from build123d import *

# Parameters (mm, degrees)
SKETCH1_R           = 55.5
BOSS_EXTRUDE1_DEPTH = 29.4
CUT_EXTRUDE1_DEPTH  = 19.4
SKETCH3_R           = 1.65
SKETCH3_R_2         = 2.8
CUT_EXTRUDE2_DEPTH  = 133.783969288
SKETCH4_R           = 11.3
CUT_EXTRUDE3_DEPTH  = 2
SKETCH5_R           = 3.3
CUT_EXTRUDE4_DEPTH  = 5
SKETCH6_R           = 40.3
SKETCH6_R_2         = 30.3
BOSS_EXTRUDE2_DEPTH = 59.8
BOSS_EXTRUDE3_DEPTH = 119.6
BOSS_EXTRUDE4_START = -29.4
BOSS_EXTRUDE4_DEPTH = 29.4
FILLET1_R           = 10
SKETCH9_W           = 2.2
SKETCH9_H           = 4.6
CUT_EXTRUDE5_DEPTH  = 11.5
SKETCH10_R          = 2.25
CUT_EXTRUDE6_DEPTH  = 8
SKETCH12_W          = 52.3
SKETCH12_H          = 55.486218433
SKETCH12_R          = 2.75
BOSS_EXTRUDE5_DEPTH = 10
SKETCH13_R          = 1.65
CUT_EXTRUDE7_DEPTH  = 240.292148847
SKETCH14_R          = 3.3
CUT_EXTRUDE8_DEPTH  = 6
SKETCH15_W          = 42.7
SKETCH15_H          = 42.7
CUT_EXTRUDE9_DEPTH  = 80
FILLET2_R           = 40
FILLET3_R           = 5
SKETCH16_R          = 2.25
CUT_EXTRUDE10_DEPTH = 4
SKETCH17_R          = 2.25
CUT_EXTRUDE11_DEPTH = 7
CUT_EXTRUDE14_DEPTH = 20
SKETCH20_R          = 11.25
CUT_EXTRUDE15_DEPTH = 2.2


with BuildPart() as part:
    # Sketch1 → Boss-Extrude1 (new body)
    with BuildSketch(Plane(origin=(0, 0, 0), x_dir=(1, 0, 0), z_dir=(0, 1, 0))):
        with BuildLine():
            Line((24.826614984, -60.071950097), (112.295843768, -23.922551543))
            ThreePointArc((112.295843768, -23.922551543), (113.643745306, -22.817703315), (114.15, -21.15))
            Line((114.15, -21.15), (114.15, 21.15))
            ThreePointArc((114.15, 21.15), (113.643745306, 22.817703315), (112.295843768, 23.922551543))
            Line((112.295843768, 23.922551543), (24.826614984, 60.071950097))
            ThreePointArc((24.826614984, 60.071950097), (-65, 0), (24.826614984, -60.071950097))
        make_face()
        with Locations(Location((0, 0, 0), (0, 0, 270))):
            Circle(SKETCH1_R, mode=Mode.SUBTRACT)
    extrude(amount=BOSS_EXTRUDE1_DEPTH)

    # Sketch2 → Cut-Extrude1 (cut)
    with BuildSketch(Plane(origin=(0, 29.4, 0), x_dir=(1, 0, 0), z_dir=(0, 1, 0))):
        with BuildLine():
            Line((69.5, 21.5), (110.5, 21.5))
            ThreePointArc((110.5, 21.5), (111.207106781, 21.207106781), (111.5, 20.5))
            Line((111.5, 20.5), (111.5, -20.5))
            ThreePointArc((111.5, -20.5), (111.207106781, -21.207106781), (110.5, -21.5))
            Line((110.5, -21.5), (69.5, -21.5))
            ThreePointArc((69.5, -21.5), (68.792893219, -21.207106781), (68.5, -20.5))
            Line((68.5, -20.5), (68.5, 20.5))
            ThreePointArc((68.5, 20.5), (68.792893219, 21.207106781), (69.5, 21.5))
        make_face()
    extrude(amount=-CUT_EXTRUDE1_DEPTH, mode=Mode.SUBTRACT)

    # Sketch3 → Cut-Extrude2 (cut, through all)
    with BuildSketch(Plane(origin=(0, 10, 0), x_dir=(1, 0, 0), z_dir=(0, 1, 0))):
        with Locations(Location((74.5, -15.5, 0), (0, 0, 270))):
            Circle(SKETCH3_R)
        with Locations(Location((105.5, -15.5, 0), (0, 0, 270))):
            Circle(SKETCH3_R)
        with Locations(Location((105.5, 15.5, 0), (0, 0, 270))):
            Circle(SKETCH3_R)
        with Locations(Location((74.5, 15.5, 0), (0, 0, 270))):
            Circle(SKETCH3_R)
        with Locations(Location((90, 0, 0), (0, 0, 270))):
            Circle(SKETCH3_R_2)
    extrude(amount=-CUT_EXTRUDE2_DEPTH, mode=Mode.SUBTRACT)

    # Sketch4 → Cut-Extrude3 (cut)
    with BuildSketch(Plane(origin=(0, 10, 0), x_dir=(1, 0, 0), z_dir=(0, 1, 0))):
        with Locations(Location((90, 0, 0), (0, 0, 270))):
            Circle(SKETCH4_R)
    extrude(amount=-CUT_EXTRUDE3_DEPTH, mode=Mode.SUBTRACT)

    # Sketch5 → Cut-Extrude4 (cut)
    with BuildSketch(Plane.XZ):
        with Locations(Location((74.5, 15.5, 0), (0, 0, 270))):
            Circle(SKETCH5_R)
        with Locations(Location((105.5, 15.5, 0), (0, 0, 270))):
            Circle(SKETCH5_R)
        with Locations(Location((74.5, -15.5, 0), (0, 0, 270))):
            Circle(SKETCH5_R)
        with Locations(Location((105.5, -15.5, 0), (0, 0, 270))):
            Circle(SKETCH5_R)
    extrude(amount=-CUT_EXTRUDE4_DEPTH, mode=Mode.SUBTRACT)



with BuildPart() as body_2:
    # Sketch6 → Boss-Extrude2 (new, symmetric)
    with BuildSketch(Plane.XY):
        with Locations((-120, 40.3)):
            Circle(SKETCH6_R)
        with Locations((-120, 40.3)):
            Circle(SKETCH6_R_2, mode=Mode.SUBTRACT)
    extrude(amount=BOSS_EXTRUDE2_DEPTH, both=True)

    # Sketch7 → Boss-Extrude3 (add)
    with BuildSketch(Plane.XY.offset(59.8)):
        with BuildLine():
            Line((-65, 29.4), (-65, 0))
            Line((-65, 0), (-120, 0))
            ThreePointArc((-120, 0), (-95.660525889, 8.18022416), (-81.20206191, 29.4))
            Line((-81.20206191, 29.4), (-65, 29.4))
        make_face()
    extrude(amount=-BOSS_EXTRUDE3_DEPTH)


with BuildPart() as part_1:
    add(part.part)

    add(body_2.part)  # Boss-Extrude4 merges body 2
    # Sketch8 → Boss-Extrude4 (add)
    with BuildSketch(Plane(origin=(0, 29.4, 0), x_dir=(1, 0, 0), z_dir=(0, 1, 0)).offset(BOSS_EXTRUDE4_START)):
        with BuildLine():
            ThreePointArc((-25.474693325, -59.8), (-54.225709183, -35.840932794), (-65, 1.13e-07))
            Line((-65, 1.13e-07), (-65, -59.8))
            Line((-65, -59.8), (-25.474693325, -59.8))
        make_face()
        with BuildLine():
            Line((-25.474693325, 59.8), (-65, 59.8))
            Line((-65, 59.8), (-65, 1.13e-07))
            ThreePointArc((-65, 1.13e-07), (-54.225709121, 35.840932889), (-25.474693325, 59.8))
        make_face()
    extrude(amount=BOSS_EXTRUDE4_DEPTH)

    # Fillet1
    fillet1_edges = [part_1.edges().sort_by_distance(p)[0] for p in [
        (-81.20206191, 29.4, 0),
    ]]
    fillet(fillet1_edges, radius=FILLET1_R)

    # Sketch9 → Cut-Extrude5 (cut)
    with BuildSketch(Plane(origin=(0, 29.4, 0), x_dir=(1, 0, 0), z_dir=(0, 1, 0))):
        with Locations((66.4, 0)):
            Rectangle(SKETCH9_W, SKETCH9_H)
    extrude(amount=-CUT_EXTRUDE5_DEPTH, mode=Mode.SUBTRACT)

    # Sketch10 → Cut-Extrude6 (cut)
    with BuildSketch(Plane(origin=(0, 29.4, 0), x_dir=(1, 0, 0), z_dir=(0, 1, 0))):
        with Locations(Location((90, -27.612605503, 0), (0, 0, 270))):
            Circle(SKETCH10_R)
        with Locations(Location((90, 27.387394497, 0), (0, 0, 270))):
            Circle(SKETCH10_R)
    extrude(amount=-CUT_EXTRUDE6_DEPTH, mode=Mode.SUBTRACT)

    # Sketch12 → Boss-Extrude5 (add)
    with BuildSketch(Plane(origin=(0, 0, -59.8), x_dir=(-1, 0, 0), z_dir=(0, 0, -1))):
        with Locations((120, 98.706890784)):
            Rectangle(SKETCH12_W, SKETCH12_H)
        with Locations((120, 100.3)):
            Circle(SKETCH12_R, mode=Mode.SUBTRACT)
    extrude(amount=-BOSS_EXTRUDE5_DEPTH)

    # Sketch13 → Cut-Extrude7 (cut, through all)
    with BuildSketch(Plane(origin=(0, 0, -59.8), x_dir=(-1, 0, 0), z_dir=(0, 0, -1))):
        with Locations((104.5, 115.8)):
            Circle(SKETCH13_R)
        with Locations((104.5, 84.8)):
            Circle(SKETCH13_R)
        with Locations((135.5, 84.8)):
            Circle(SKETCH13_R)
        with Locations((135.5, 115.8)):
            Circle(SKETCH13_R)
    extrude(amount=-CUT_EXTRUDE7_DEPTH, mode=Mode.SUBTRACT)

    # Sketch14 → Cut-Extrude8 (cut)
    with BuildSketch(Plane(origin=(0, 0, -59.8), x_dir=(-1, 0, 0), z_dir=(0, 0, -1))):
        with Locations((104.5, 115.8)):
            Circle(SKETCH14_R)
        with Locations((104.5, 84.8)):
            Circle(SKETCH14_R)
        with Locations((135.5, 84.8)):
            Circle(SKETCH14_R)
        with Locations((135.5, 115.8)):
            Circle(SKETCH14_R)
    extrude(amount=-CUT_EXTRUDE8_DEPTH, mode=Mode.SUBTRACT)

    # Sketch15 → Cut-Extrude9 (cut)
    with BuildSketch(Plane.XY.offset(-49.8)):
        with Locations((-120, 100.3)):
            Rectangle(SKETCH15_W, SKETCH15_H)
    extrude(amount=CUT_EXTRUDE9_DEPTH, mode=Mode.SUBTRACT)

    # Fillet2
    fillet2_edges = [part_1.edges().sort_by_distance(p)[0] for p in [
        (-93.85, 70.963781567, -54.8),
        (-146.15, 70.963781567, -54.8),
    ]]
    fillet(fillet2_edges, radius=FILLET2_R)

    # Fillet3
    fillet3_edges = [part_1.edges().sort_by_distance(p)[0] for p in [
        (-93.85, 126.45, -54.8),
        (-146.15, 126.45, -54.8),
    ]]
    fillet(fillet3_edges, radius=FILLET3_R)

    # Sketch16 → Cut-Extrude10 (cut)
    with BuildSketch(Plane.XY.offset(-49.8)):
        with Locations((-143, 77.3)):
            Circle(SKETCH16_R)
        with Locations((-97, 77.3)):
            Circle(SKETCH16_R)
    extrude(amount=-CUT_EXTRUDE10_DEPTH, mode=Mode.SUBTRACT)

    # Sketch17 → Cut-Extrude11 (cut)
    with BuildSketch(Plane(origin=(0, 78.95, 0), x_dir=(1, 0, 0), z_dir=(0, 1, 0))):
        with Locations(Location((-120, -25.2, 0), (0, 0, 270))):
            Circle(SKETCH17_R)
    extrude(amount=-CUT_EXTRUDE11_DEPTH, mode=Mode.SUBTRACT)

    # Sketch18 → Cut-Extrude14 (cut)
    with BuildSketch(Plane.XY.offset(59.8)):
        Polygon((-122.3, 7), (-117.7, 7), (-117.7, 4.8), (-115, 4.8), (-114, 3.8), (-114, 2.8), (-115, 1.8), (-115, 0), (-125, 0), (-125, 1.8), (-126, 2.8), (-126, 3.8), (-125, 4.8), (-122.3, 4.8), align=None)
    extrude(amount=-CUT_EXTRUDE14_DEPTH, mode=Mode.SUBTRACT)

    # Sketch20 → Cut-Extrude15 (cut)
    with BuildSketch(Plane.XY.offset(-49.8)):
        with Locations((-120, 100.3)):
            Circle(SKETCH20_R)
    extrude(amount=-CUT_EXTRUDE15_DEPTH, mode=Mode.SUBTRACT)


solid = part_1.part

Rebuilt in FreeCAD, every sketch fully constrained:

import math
import FreeCAD as App
import Part
import Sketcher

V = App.Vector
Q = App.Units.Quantity


def edges_at(feature, points):
    """Names of the edges that pass closest to the given points."""
    edges = feature.Shape.Edges
    near = lambda p: min(range(len(edges)), key=lambda i: edges[i].distToShape(Part.Vertex(*p))[0])
    return sorted({f"Edge{near(p) + 1}" for p in points})

doc = App.newDocument("Part")
params = doc.addObject("Spreadsheet::Sheet", "Params")
for row, (alias, value) in enumerate([
    ("sketch1_diameter", "111 mm"),
    ("sketch1_radius", "3 mm"),
    ("sketch1_radius2", "65 mm"),
    ("sketch1_height", "42.3 mm"),
    ("pad1_length", "29.4 mm"),
    ("sketch2_radius", "1 mm"),
    ("sketch2_width", "41 mm"),
    ("pocket1_length", "19.4 mm"),
    ("sketch3_diameter", "3.3 mm"),
    ("sketch3_diameter2", "5.6 mm"),
    ("sketch4_diameter", "22.6 mm"),
    ("pocket3_length", "2 mm"),
    ("sketch5_diameter", "6.6 mm"),
    ("pocket4_length", "5 mm"),
    ("sketch6_diameter", "80.6 mm"),
    ("sketch6_diameter2", "60.6 mm"),
    ("pad2_length", "119.6 mm"),
    ("sketch7_radius", "40.3 mm"),
    ("sketch7_width", "55 mm"),
    ("sketch7_height", "29.4 mm"),
    ("pad3_length", "119.6 mm"),
    ("sketch8_radius", "65 mm"),
    ("sketch8_height", "59.8 mm"),
    ("pad4_length", "29.4 mm"),
    ("fillet_radius", "10 mm"),
    ("sketch9_width", "2.2 mm"),
    ("sketch9_height", "4.6 mm"),
    ("pocket5_length", "11.5 mm"),
    ("sketch10_diameter", "4.5 mm"),
    ("pocket6_length", "8 mm"),
    ("sketch11_diameter", "5.5 mm"),
    ("sketch11_width", "52.3 mm"),
    ("pad5_length", "10 mm"),
    ("sketch12_diameter", "3.3 mm"),
    ("sketch13_diameter", "6.6 mm"),
    ("pocket8_length", "6 mm"),
    ("sketch14_width", "42.7 mm"),
    ("pocket9_length", "80 mm"),
    ("fillet2_radius", "40 mm"),
    ("fillet3_radius", "5 mm"),
    ("sketch15_diameter", "4.5 mm"),
    ("pocket10_length", "4 mm"),
    ("sketch16_diameter", "4.5 mm"),
    ("pocket11_length", "7 mm"),
    ("sketch17_width", "10 mm"),
    ("sketch17_height", "1 mm"),
    ("sketch17_width2", "4.6 mm"),
    ("sketch17_height2", "2.2 mm"),
    ("sketch17_height3", "1.8 mm"),
    ("pocket12_length", "20 mm"),
    ("sketch18_diameter", "22.5 mm"),
    ("pocket13_length", "2.2 mm"),
], start=1):
    params.set(f"A{row}", alias)
    params.set(f"B{row}", "=" + value)
    params.setAlias(f"B{row}", alias)

body = doc.addObject("PartDesign::Body", "Body")

sketch1 = doc.addObject("Sketcher::SketchObject", "Sketch")
body.addObject(sketch1)
sketch1.AttachmentSupport = (doc.XZ_Plane, [""])
sketch1.MapMode = "FlatFace"
sketch1.addGeometry([
    Part.LineSegment(V(24.826615, 60.07195, 0), V(112.295844, 23.922552, 0)),
    Part.ArcOfCircle(Part.Circle(V(111.15, 21.15, 0), V(0, 0, 1), 3), math.radians(0), math.radians(67.545606)),
    Part.LineSegment(V(114.15, 21.15, 0), V(114.15, -21.15, 0)),
    Part.ArcOfCircle(Part.Circle(V(111.15, -21.15, 0), V(0, 0, 1), 3), math.radians(-67.545606), math.radians(0)),
    Part.LineSegment(V(112.295844, -23.922552, 0), V(24.826615, -60.07195, 0)),
    Part.ArcOfCircle(Part.Circle(V(0, 0, 0), V(0, 0, 1), 65), math.radians(67.545606), math.radians(292.454394)),
    Part.Circle(V(0, 0, 0), V(0, 0, 1), 55.5),
], False)
sketch1.addConstraint([
    Sketcher.Constraint("Tangent", 0, 2, 1, 2),
    Sketcher.Constraint("Tangent", 1, 1, 2, 1),
    Sketcher.Constraint("Tangent", 2, 2, 3, 2),
    Sketcher.Constraint("Tangent", 3, 1, 4, 1),
    Sketcher.Constraint("Tangent", 4, 2, 5, 2),
    Sketcher.Constraint("Tangent", 5, 1, 0, 1),
    Sketcher.Constraint("Vertical", 2),
    Sketcher.Constraint("Coincident", 5, 3, -1, 1),
    Sketcher.Constraint("Coincident", 6, 3, -1, 1),
    Sketcher.Constraint("Equal", 1, 3),
    Sketcher.Constraint("Vertical", 0, 2, 3, 1),
    Sketcher.Constraint("Diameter", 6, Q("111 mm")),
    Sketcher.Constraint("Radius", 1, Q("3 mm")),
    Sketcher.Constraint("Radius", 5, Q("65 mm")),
    Sketcher.Constraint("DistanceY", 2, 2, 2, 1, Q("42.3 mm")),
    Sketcher.Constraint("DistanceX", -1, 1, 1, 3, Q("111.15 mm")),
])
sketch1.setExpression("Constraints[11]", "Params.sketch1_diameter")
sketch1.setExpression("Constraints[12]", "Params.sketch1_radius")
sketch1.setExpression("Constraints[13]", "Params.sketch1_radius2")
sketch1.setExpression("Constraints[14]", "Params.sketch1_height")
pad1 = doc.addObject("PartDesign::Pad", "Pad")
body.addObject(pad1)
pad1.Profile = sketch1
pad1.setExpression("Length", "Params.pad1_length")
pad1.Reversed = True

sketch2 = doc.addObject("Sketcher::SketchObject", "Sketch001")
body.addObject(sketch2)
sketch2.AttachmentSupport = (doc.XZ_Plane, [""])
sketch2.MapMode = "FlatFace"
sketch2.AttachmentOffset = App.Placement(V(0, 0, -29.4), App.Rotation())
sketch2.addGeometry([
    Part.LineSegment(V(110.5, -21.5, 0), V(69.5, -21.5, 0)),
    Part.ArcOfCircle(Part.Circle(V(69.5, -20.5, 0), V(0, 0, 1), 1), math.radians(-180), math.radians(-90)),
    Part.LineSegment(V(68.5, -20.5, 0), V(68.5, 20.5, 0)),
    Part.ArcOfCircle(Part.Circle(V(69.5, 20.5, 0), V(0, 0, 1), 1), math.radians(90), math.radians(180)),
    Part.LineSegment(V(69.5, 21.5, 0), V(110.5, 21.5, 0)),
    Part.ArcOfCircle(Part.Circle(V(110.5, 20.5, 0), V(0, 0, 1), 1), math.radians(0), math.radians(90)),
    Part.LineSegment(V(111.5, 20.5, 0), V(111.5, -20.5, 0)),
    Part.ArcOfCircle(Part.Circle(V(110.5, -20.5, 0), V(0, 0, 1), 1), math.radians(-90), math.radians(0)),
], False)
sketch2.addConstraint([
    Sketcher.Constraint("Tangent", 0, 2, 1, 2),
    Sketcher.Constraint("Tangent", 1, 1, 2, 1),
    Sketcher.Constraint("Tangent", 2, 2, 3, 2),
    Sketcher.Constraint("Tangent", 3, 1, 4, 1),
    Sketcher.Constraint("Tangent", 4, 2, 5, 2),
    Sketcher.Constraint("Tangent", 5, 1, 6, 1),
    Sketcher.Constraint("Tangent", 6, 2, 7, 2),
    Sketcher.Constraint("Tangent", 7, 1, 0, 1),
    Sketcher.Constraint("Horizontal", 0),
    Sketcher.Constraint("Vertical", 2),
    Sketcher.Constraint("Horizontal", 4),
    Sketcher.Constraint("Vertical", 6),
    Sketcher.Constraint("Equal", 1, 3),
    Sketcher.Constraint("Equal", 3, 5),
    Sketcher.Constraint("Equal", 5, 7),
    Sketcher.Constraint("Equal", 4, 2),
    Sketcher.Constraint("Radius", 1, Q("1 mm")),
    Sketcher.Constraint("DistanceX", 0, 2, 0, 1, Q("41 mm")),
    Sketcher.Constraint("DistanceX", -1, 1, 1, 3, Q("69.5 mm")),
    Sketcher.Constraint("DistanceY", 1, 3, -1, 1, Q("20.5 mm")),
])
sketch2.setExpression("Constraints[16]", "Params.sketch2_radius")
sketch2.setExpression("Constraints[17]", "Params.sketch2_width")
pocket1 = doc.addObject("PartDesign::Pocket", "Pocket")
body.addObject(pocket1)
pocket1.Profile = sketch2
pocket1.setExpression("Length", "Params.pocket1_length")
pocket1.Reversed = True

sketch3 = doc.addObject("Sketcher::SketchObject", "Sketch002")
body.addObject(sketch3)
sketch3.AttachmentSupport = (doc.XZ_Plane, [""])
sketch3.MapMode = "FlatFace"
sketch3.AttachmentOffset = App.Placement(V(0, 0, -10), App.Rotation())
sketch3.addGeometry([
    Part.Circle(V(74.5, 15.5, 0), V(0, 0, 1), 1.65),
    Part.Circle(V(105.5, 15.5, 0), V(0, 0, 1), 1.65),
    Part.Circle(V(105.5, -15.5, 0), V(0, 0, 1), 1.65),
    Part.Circle(V(74.5, -15.5, 0), V(0, 0, 1), 1.65),
    Part.Circle(V(90, 0, 0), V(0, 0, 1), 2.8),
], False)
sketch3.addConstraint([
    Sketcher.Constraint("Equal", 0, 1),
    Sketcher.Constraint("Equal", 1, 2),
    Sketcher.Constraint("Equal", 2, 3),
    Sketcher.Constraint("Symmetric", 1, 3, 2, 3, -1),
    Sketcher.Constraint("Symmetric", 0, 3, 3, 3, -1),
    Sketcher.Constraint("PointOnObject", 4, 3, -1),
    Sketcher.Constraint("Horizontal", 0, 3, 1, 3),
    Sketcher.Constraint("Diameter", 0, Q("3.3 mm")),
    Sketcher.Constraint("Diameter", 4, Q("5.6 mm")),
    Sketcher.Constraint("DistanceX", -1, 1, 4, 3, Q("90 mm")),
    Sketcher.Constraint("DistanceX", 0, 3, 1, 3, Q("31 mm")),
    Sketcher.Constraint("DistanceY", 2, 3, 1, 3, Q("31 mm")),
    Sketcher.Constraint("DistanceX", -1, 1, 0, 3, Q("74.5 mm")),
])
sketch3.setExpression("Constraints[7]", "Params.sketch3_diameter")
sketch3.setExpression("Constraints[8]", "Params.sketch3_diameter2")
pocket2 = doc.addObject("PartDesign::Pocket", "Pocket001")
body.addObject(pocket2)
pocket2.Profile = sketch3
pocket2.Type = "ThroughAll"
pocket2.Reversed = True

sketch4 = doc.addObject("Sketcher::SketchObject", "Sketch003")
body.addObject(sketch4)
sketch4.AttachmentSupport = (doc.XZ_Plane, [""])
sketch4.MapMode = "FlatFace"
sketch4.AttachmentOffset = App.Placement(V(0, 0, -10), App.Rotation())
sketch4.addGeometry(Part.Circle(V(90, 0, 0), V(0, 0, 1), 11.3), False)
sketch4.addConstraint([
    Sketcher.Constraint("PointOnObject", 0, 3, -1),
    Sketcher.Constraint("Diameter", 0, Q("22.6 mm")),
    Sketcher.Constraint("DistanceX", -1, 1, 0, 3, Q("90 mm")),
])
sketch4.setExpression("Constraints[1]", "Params.sketch4_diameter")
pocket3 = doc.addObject("PartDesign::Pocket", "Pocket002")
body.addObject(pocket3)
pocket3.Profile = sketch4
pocket3.setExpression("Length", "Params.pocket3_length")
pocket3.Reversed = True

sketch5 = doc.addObject("Sketcher::SketchObject", "Sketch004")
body.addObject(sketch5)
sketch5.AttachmentSupport = (doc.XZ_Plane, [""])
sketch5.MapMode = "FlatFace"
sketch5.addGeometry([
    Part.Circle(V(74.5, 15.5, 0), V(0, 0, 1), 3.3),
    Part.Circle(V(105.5, 15.5, 0), V(0, 0, 1), 3.3),
    Part.Circle(V(74.5, -15.5, 0), V(0, 0, 1), 3.3),
    Part.Circle(V(105.5, -15.5, 0), V(0, 0, 1), 3.3),
], False)
sketch5.addConstraint([
    Sketcher.Constraint("Equal", 0, 1),
    Sketcher.Constraint("Equal", 1, 2),
    Sketcher.Constraint("Equal", 2, 3),
    Sketcher.Constraint("Symmetric", 0, 3, 2, 3, -1),
    Sketcher.Constraint("Symmetric", 1, 3, 3, 3, -1),
    Sketcher.Constraint("Horizontal", 0, 3, 1, 3),
    Sketcher.Constraint("Diameter", 0, Q("6.6 mm")),
    Sketcher.Constraint("DistanceX", 0, 3, 1, 3, Q("31 mm")),
    Sketcher.Constraint("DistanceY", 2, 3, 0, 3, Q("31 mm")),
    Sketcher.Constraint("DistanceX", -1, 1, 0, 3, Q("74.5 mm")),
])
sketch5.setExpression("Constraints[6]", "Params.sketch5_diameter")
pocket4 = doc.addObject("PartDesign::Pocket", "Pocket003")
body.addObject(pocket4)
pocket4.Profile = sketch5
pocket4.setExpression("Length", "Params.pocket4_length")
body2 = doc.addObject("PartDesign::Body", "Body001")

sketch6 = doc.addObject("Sketcher::SketchObject", "Sketch005")
body2.addObject(sketch6)
sketch6.AttachmentSupport = (doc.getObject("XY_Plane001"), [""])
sketch6.MapMode = "FlatFace"
sketch6.addGeometry([
    Part.Circle(V(-120, 40.3, 0), V(0, 0, 1), 40.3),
    Part.Circle(V(-120, 40.3, 0), V(0, 0, 1), 30.3),
], False)
sketch6.addConstraint([
    Sketcher.Constraint("Coincident", 1, 3, 0, 3),
    Sketcher.Constraint("Diameter", 0, Q("80.6 mm")),
    Sketcher.Constraint("Diameter", 1, Q("60.6 mm")),
    Sketcher.Constraint("DistanceX", 0, 3, -1, 1, Q("120 mm")),
    Sketcher.Constraint("DistanceY", -1, 1, 0, 3, Q("40.3 mm")),
])
sketch6.setExpression("Constraints[1]", "Params.sketch6_diameter")
sketch6.setExpression("Constraints[2]", "Params.sketch6_diameter2")
pad2 = doc.addObject("PartDesign::Pad", "Pad001")
body2.addObject(pad2)
pad2.Profile = sketch6
pad2.setExpression("Length", "Params.pad2_length")
pad2.Midplane = True

sketch7 = doc.addObject("Sketcher::SketchObject", "Sketch006")
body2.addObject(sketch7)
sketch7.AttachmentSupport = (doc.getObject("XY_Plane001"), [""])
sketch7.MapMode = "FlatFace"
sketch7.AttachmentOffset = App.Placement(V(0, 0, 59.8), App.Rotation())
sketch7.addGeometry([
    Part.LineSegment(V(-65, 0, 0), V(-65, 29.4, 0)),
    Part.LineSegment(V(-65, 29.4, 0), V(-81.202062, 29.4, 0)),
    Part.ArcOfCircle(Part.Circle(V(-120, 40.3, 0), V(0, 0, 1), 40.3), math.radians(-90), math.radians(-15.692324)),
    Part.LineSegment(V(-120, 0, 0), V(-65, 0, 0)),
], False)
sketch7.addConstraint([
    Sketcher.Constraint("Coincident", 0, 2, 1, 1),
    Sketcher.Constraint("Coincident", 1, 2, 2, 2),
    Sketcher.Constraint("Tangent", 2, 1, 3, 1),
    Sketcher.Constraint("Coincident", 3, 2, 0, 1),
    Sketcher.Constraint("Vertical", 0),
    Sketcher.Constraint("Horizontal", 1),
    Sketcher.Constraint("Horizontal", 3),
    Sketcher.Constraint("PointOnObject", 2, 1, -1),
    Sketcher.Constraint("Radius", 2, Q("40.3 mm")),
    Sketcher.Constraint("DistanceX", 3, 1, 3, 2, Q("55 mm")),
    Sketcher.Constraint("DistanceY", 0, 1, 0, 2, Q("29.4 mm")),
    Sketcher.Constraint("DistanceX", 2, 3, -1, 1, Q("120 mm")),
])
sketch7.setExpression("Constraints[8]", "Params.sketch7_radius")
sketch7.setExpression("Constraints[9]", "Params.sketch7_width")
sketch7.setExpression("Constraints[10]", "Params.sketch7_height")
pad3 = doc.addObject("PartDesign::Pad", "Pad002")
body2.addObject(pad3)
pad3.Profile = sketch7
pad3.setExpression("Length", "Params.pad3_length")
pad3.Reversed = True
body.AllowCompound = True
doc.recompute()

boolean = doc.addObject("PartDesign::Boolean", "Boolean")
body.addObject(boolean)
boolean.Type = "Fuse"
boolean.addObjects([body2])

sketch8 = doc.addObject("Sketcher::SketchObject", "Sketch007")
body.addObject(sketch8)
sketch8.AttachmentSupport = (doc.XZ_Plane, [""])
sketch8.MapMode = "FlatFace"
sketch8.addGeometry([
    Part.ArcOfCircle(Part.Circle(V(0, 0, 0), V(0, 0, 1), 65), math.radians(113.073918), math.radians(180)),
    Part.LineSegment(V(-65, 0, 0), V(-65, 59.8, 0)),
    Part.LineSegment(V(-65, 59.8, 0), V(-25.474693, 59.8, 0)),
    Part.LineSegment(V(-25.474693, -59.8, 0), V(-65, -59.8, 0)),
    Part.LineSegment(V(-65, -59.8, 0), V(-65, 0, 0)),
    Part.ArcOfCircle(Part.Circle(V(0, 0, 0), V(0, 0, 1), 65), math.radians(-180), math.radians(-113.073918)),
], False)
sketch8.addConstraint([
    Sketcher.Constraint("Tangent", 0, 2, 1, 1),
    Sketcher.Constraint("Coincident", 1, 2, 2, 1),
    Sketcher.Constraint("Coincident", 2, 2, 0, 1),
    Sketcher.Constraint("Coincident", 3, 2, 4, 1),
    Sketcher.Constraint("Tangent", 4, 2, 5, 1),
    Sketcher.Constraint("Coincident", 5, 2, 3, 1),
    Sketcher.Constraint("Vertical", 1),
    Sketcher.Constraint("Horizontal", 2),
    Sketcher.Constraint("Horizontal", 3),
    Sketcher.Constraint("Vertical", 4),
    Sketcher.Constraint("Coincident", 0, 3, -1, 1),
    Sketcher.Constraint("Coincident", 5, 3, -1, 1),
    Sketcher.Constraint("Equal", 0, 5),
    Sketcher.Constraint("Vertical", 2, 2, 5, 2),
    Sketcher.Constraint("Radius", 0, Q("65 mm")),
    Sketcher.Constraint("DistanceY", 1, 1, 1, 2, Q("59.8 mm")),
])
sketch8.setExpression("Constraints[14]", "Params.sketch8_radius")
sketch8.setExpression("Constraints[15]", "Params.sketch8_height")
pad4 = doc.addObject("PartDesign::Pad", "Pad003")
body.addObject(pad4)
pad4.Profile = sketch8
pad4.setExpression("Length", "Params.pad4_length")
pad4.Reversed = True
doc.recompute()

fillet = doc.addObject("PartDesign::Fillet", "Fillet")
body.addObject(fillet)
fillet.Base = (pad4, edges_at(pad4, [(-81.202, 29.4, 0)]))
fillet.setExpression("Radius", "Params.fillet_radius")

sketch9 = doc.addObject("Sketcher::SketchObject", "Sketch008")
body.addObject(sketch9)
sketch9.AttachmentSupport = (doc.XZ_Plane, [""])
sketch9.MapMode = "FlatFace"
sketch9.AttachmentOffset = App.Placement(V(0, 0, -29.4), App.Rotation())
sketch9.addGeometry([
    Part.LineSegment(V(65.3, -2.3, 0), V(65.3, 2.3, 0)),
    Part.LineSegment(V(65.3, 2.3, 0), V(67.5, 2.3, 0)),
    Part.LineSegment(V(67.5, 2.3, 0), V(67.5, -2.3, 0)),
    Part.LineSegment(V(67.5, -2.3, 0), V(65.3, -2.3, 0)),
], False)
sketch9.addConstraint([
    Sketcher.Constraint("Coincident", 0, 2, 1, 1),
    Sketcher.Constraint("Coincident", 1, 2, 2, 1),
    Sketcher.Constraint("Coincident", 2, 2, 3, 1),
    Sketcher.Constraint("Coincident", 3, 2, 0, 1),
    Sketcher.Constraint("Vertical", 0),
    Sketcher.Constraint("Horizontal", 1),
    Sketcher.Constraint("Vertical", 2),
    Sketcher.Constraint("Horizontal", 3),
    Sketcher.Constraint("DistanceX", 1, 1, 1, 2, Q("2.2 mm")),
    Sketcher.Constraint("DistanceY", 0, 1, 0, 2, Q("4.6 mm")),
    Sketcher.Constraint("DistanceX", -1, 1, 0, 2, Q("65.3 mm")),
    Sketcher.Constraint("DistanceY", -1, 1, 0, 2, Q("2.3 mm")),
])
sketch9.setExpression("Constraints[8]", "Params.sketch9_width")
sketch9.setExpression("Constraints[9]", "Params.sketch9_height")
pocket5 = doc.addObject("PartDesign::Pocket", "Pocket004")
body.addObject(pocket5)
pocket5.Profile = sketch9
pocket5.setExpression("Length", "Params.pocket5_length")
pocket5.Reversed = True

sketch10 = doc.addObject("Sketcher::SketchObject", "Sketch009")
body.addObject(sketch10)
sketch10.AttachmentSupport = (doc.XZ_Plane, [""])
sketch10.MapMode = "FlatFace"
sketch10.AttachmentOffset = App.Placement(V(0, 0, -29.4), App.Rotation())
sketch10.addGeometry([
    Part.Circle(V(90, 27.612606, 0), V(0, 0, 1), 2.25),
    Part.Circle(V(90, -27.387394, 0), V(0, 0, 1), 2.25),
], False)
sketch10.addConstraint([
    Sketcher.Constraint("Equal", 0, 1),
    Sketcher.Constraint("Vertical", 0, 3, 1, 3),
    Sketcher.Constraint("Diameter", 0, Q("4.5 mm")),
    Sketcher.Constraint("DistanceX", -1, 1, 0, 3, Q("90 mm")),
    Sketcher.Constraint("DistanceY", 1, 3, 0, 3, Q("55 mm")),
    Sketcher.Constraint("DistanceY", -1, 1, 0, 3, Q("27.612606 mm")),
])
sketch10.setExpression("Constraints[2]", "Params.sketch10_diameter")
pocket6 = doc.addObject("PartDesign::Pocket", "Pocket005")
body.addObject(pocket6)
pocket6.Profile = sketch10
pocket6.setExpression("Length", "Params.pocket6_length")
pocket6.Reversed = True

sketch11 = doc.addObject("Sketcher::SketchObject", "Sketch010")
body.addObject(sketch11)
sketch11.AttachmentSupport = (doc.XY_Plane, [""])
sketch11.MapMode = "FlatFace"
sketch11.AttachmentOffset = App.Placement(V(0, 0, -59.8), App.Rotation())
sketch11.addGeometry([
    Part.LineSegment(V(-93.85, 126.45, 0), V(-93.85, 70.963782, 0)),
    Part.LineSegment(V(-93.85, 70.963782, 0), V(-146.15, 70.963782, 0)),
    Part.LineSegment(V(-146.15, 70.963782, 0), V(-146.15, 126.45, 0)),
    Part.LineSegment(V(-146.15, 126.45, 0), V(-93.85, 126.45, 0)),
    Part.Circle(V(-120, 100.3, 0), V(0, 0, 1), 2.75),
], False)
sketch11.addConstraint([
    Sketcher.Constraint("Coincident", 0, 2, 1, 1),
    Sketcher.Constraint("Coincident", 1, 2, 2, 1),
    Sketcher.Constraint("Coincident", 2, 2, 3, 1),
    Sketcher.Constraint("Coincident", 3, 2, 0, 1),
    Sketcher.Constraint("Vertical", 0),
    Sketcher.Constraint("Horizontal", 1),
    Sketcher.Constraint("Vertical", 2),
    Sketcher.Constraint("Horizontal", 3),
    Sketcher.Constraint("Diameter", 4, Q("5.5 mm")),
    Sketcher.Constraint("DistanceX", 1, 2, 1, 1, Q("52.3 mm")),
    Sketcher.Constraint("DistanceX", 4, 3, -1, 1, Q("120 mm")),
    Sketcher.Constraint("DistanceY", -1, 1, 4, 3, Q("100.3 mm")),
    Sketcher.Constraint("DistanceX", 0, 2, -1, 1, Q("93.85 mm")),
    Sketcher.Constraint("DistanceY", -1, 1, 2, 2, Q("126.45 mm")),
    Sketcher.Constraint("DistanceY", 0, 2, 0, 1, Q("55.486218 mm")),
])
sketch11.setExpression("Constraints[8]", "Params.sketch11_diameter")
sketch11.setExpression("Constraints[9]", "Params.sketch11_width")
pad5 = doc.addObject("PartDesign::Pad", "Pad004")
body.addObject(pad5)
pad5.Profile = sketch11
pad5.setExpression("Length", "Params.pad5_length")

sketch12 = doc.addObject("Sketcher::SketchObject", "Sketch011")
body.addObject(sketch12)
sketch12.AttachmentSupport = (doc.XY_Plane, [""])
sketch12.MapMode = "FlatFace"
sketch12.AttachmentOffset = App.Placement(V(0, 0, -59.8), App.Rotation())
sketch12.addGeometry([
    Part.Circle(V(-104.5, 115.8, 0), V(0, 0, 1), 1.65),
    Part.Circle(V(-104.5, 84.8, 0), V(0, 0, 1), 1.65),
    Part.Circle(V(-135.5, 84.8, 0), V(0, 0, 1), 1.65),
    Part.Circle(V(-135.5, 115.8, 0), V(0, 0, 1), 1.65),
], False)
sketch12.addConstraint([
    Sketcher.Constraint("Equal", 0, 1),
    Sketcher.Constraint("Equal", 1, 2),
    Sketcher.Constraint("Equal", 2, 3),
    Sketcher.Constraint("Horizontal", 1, 3, 2, 3),
    Sketcher.Constraint("Horizontal", 0, 3, 3, 3),
    Sketcher.Constraint("Vertical", 0, 3, 1, 3),
    Sketcher.Constraint("Vertical", 2, 3, 3, 3),
    Sketcher.Constraint("Diameter", 0, Q("3.3 mm")),
    Sketcher.Constraint("DistanceY", 1, 3, 0, 3, Q("31 mm")),
    Sketcher.Constraint("DistanceX", 2, 3, 1, 3, Q("31 mm")),
    Sketcher.Constraint("DistanceX", 0, 3, -1, 1, Q("104.5 mm")),
    Sketcher.Constraint("DistanceY", -1, 1, 0, 3, Q("115.8 mm")),
])
sketch12.setExpression("Constraints[7]", "Params.sketch12_diameter")
pocket7 = doc.addObject("PartDesign::Pocket", "Pocket006")
body.addObject(pocket7)
pocket7.Profile = sketch12
pocket7.Type = "ThroughAll"
pocket7.Reversed = True

sketch13 = doc.addObject("Sketcher::SketchObject", "Sketch012")
body.addObject(sketch13)
sketch13.AttachmentSupport = (doc.XY_Plane, [""])
sketch13.MapMode = "FlatFace"
sketch13.AttachmentOffset = App.Placement(V(0, 0, -59.8), App.Rotation())
sketch13.addGeometry([
    Part.Circle(V(-104.5, 115.8, 0), V(0, 0, 1), 3.3),
    Part.Circle(V(-104.5, 84.8, 0), V(0, 0, 1), 3.3),
    Part.Circle(V(-135.5, 84.8, 0), V(0, 0, 1), 3.3),
    Part.Circle(V(-135.5, 115.8, 0), V(0, 0, 1), 3.3),
], False)
sketch13.addConstraint([
    Sketcher.Constraint("Equal", 0, 1),
    Sketcher.Constraint("Equal", 1, 2),
    Sketcher.Constraint("Equal", 2, 3),
    Sketcher.Constraint("Horizontal", 1, 3, 2, 3),
    Sketcher.Constraint("Horizontal", 0, 3, 3, 3),
    Sketcher.Constraint("Vertical", 0, 3, 1, 3),
    Sketcher.Constraint("Vertical", 2, 3, 3, 3),
    Sketcher.Constraint("Diameter", 0, Q("6.6 mm")),
    Sketcher.Constraint("DistanceY", 1, 3, 0, 3, Q("31 mm")),
    Sketcher.Constraint("DistanceX", 2, 3, 1, 3, Q("31 mm")),
    Sketcher.Constraint("DistanceX", 0, 3, -1, 1, Q("104.5 mm")),
    Sketcher.Constraint("DistanceY", -1, 1, 0, 3, Q("115.8 mm")),
])
sketch13.setExpression("Constraints[7]", "Params.sketch13_diameter")
pocket8 = doc.addObject("PartDesign::Pocket", "Pocket007")
body.addObject(pocket8)
pocket8.Profile = sketch13
pocket8.setExpression("Length", "Params.pocket8_length")
pocket8.Reversed = True

sketch14 = doc.addObject("Sketcher::SketchObject", "Sketch013")
body.addObject(sketch14)
sketch14.AttachmentSupport = (doc.XY_Plane, [""])
sketch14.MapMode = "FlatFace"
sketch14.AttachmentOffset = App.Placement(V(0, 0, -49.8), App.Rotation())
sketch14.addGeometry([
    Part.LineSegment(V(-141.35, 121.65, 0), V(-141.35, 78.95, 0)),
    Part.LineSegment(V(-141.35, 78.95, 0), V(-98.65, 78.95, 0)),
    Part.LineSegment(V(-98.65, 78.95, 0), V(-98.65, 121.65, 0)),
    Part.LineSegment(V(-98.65, 121.65, 0), V(-141.35, 121.65, 0)),
], False)
sketch14.addConstraint([
    Sketcher.Constraint("Coincident", 0, 2, 1, 1),
    Sketcher.Constraint("Coincident", 1, 2, 2, 1),
    Sketcher.Constraint("Coincident", 2, 2, 3, 1),
    Sketcher.Constraint("Coincident", 3, 2, 0, 1),
    Sketcher.Constraint("Vertical", 0),
    Sketcher.Constraint("Horizontal", 1),
    Sketcher.Constraint("Vertical", 2),
    Sketcher.Constraint("Horizontal", 3),
    Sketcher.Constraint("Equal", 3, 0),
    Sketcher.Constraint("DistanceX", 1, 1, 1, 2, Q("42.7 mm")),
    Sketcher.Constraint("DistanceX", 0, 2, -1, 1, Q("141.35 mm")),
    Sketcher.Constraint("DistanceY", -1, 1, 0, 2, Q("78.95 mm")),
])
sketch14.setExpression("Constraints[9]", "Params.sketch14_width")
pocket9 = doc.addObject("PartDesign::Pocket", "Pocket008")
body.addObject(pocket9)
pocket9.Profile = sketch14
pocket9.setExpression("Length", "Params.pocket9_length")
pocket9.Reversed = True
doc.recompute()

fillet2 = doc.addObject("PartDesign::Fillet", "Fillet001")
body.addObject(fillet2)
fillet2.Base = (pocket9, edges_at(pocket9, [(-93.85, 70.964, -54.8), (-146.15, 70.964, -54.8)]))
fillet2.setExpression("Radius", "Params.fillet2_radius")
doc.recompute()

fillet3 = doc.addObject("PartDesign::Fillet", "Fillet002")
body.addObject(fillet3)
fillet3.Base = (fillet2, edges_at(fillet2, [(-93.85, 126.45, -54.8), (-146.15, 126.45, -54.8)]))
fillet3.setExpression("Radius", "Params.fillet3_radius")

sketch15 = doc.addObject("Sketcher::SketchObject", "Sketch014")
body.addObject(sketch15)
sketch15.AttachmentSupport = (doc.XY_Plane, [""])
sketch15.MapMode = "FlatFace"
sketch15.AttachmentOffset = App.Placement(V(0, 0, -49.8), App.Rotation())
sketch15.addGeometry([
    Part.Circle(V(-143, 77.3, 0), V(0, 0, 1), 2.25),
    Part.Circle(V(-97, 77.3, 0), V(0, 0, 1), 2.25),
], False)
sketch15.addConstraint([
    Sketcher.Constraint("Equal", 0, 1),
    Sketcher.Constraint("Horizontal", 0, 3, 1, 3),
    Sketcher.Constraint("Diameter", 0, Q("4.5 mm")),
    Sketcher.Constraint("DistanceX", 0, 3, -1, 1, Q("143 mm")),
    Sketcher.Constraint("DistanceX", 1, 3, -1, 1, Q("97 mm")),
    Sketcher.Constraint("DistanceY", -1, 1, 0, 3, Q("77.3 mm")),
])
sketch15.setExpression("Constraints[2]", "Params.sketch15_diameter")
pocket10 = doc.addObject("PartDesign::Pocket", "Pocket009")
body.addObject(pocket10)
pocket10.Profile = sketch15
pocket10.setExpression("Length", "Params.pocket10_length")

sketch16 = doc.addObject("Sketcher::SketchObject", "Sketch015")
body.addObject(sketch16)
sketch16.AttachmentSupport = (doc.XZ_Plane, [""])
sketch16.MapMode = "FlatFace"
sketch16.AttachmentOffset = App.Placement(V(0, 0, -78.95), App.Rotation())
sketch16.addGeometry(Part.Circle(V(-120, 25.2, 0), V(0, 0, 1), 2.25), False)
sketch16.addConstraint([
    Sketcher.Constraint("Diameter", 0, Q("4.5 mm")),
    Sketcher.Constraint("DistanceX", 0, 3, -1, 1, Q("120 mm")),
    Sketcher.Constraint("DistanceY", -1, 1, 0, 3, Q("25.2 mm")),
])
sketch16.setExpression("Constraints[0]", "Params.sketch16_diameter")
pocket11 = doc.addObject("PartDesign::Pocket", "Pocket010")
body.addObject(pocket11)
pocket11.Profile = sketch16
pocket11.setExpression("Length", "Params.pocket11_length")
pocket11.Reversed = True

sketch17 = doc.addObject("Sketcher::SketchObject", "Sketch016")
body.addObject(sketch17)
sketch17.AttachmentSupport = (doc.XY_Plane, [""])
sketch17.MapMode = "FlatFace"
sketch17.AttachmentOffset = App.Placement(V(0, 0, 59.8), App.Rotation())
sketch17.addGeometry([
    Part.LineSegment(V(-117.7, 7, 0), V(-122.3, 7, 0)),
    Part.LineSegment(V(-122.3, 7, 0), V(-122.3, 4.8, 0)),
    Part.LineSegment(V(-122.3, 4.8, 0), V(-125, 4.8, 0)),
    Part.LineSegment(V(-125, 4.8, 0), V(-126, 3.8, 0)),
    Part.LineSegment(V(-126, 3.8, 0), V(-126, 2.8, 0)),
    Part.LineSegment(V(-126, 2.8, 0), V(-125, 1.8, 0)),
    Part.LineSegment(V(-125, 1.8, 0), V(-125, 0, 0)),
    Part.LineSegment(V(-125, 0, 0), V(-115, 0, 0)),
    Part.LineSegment(V(-115, 0, 0), V(-115, 1.8, 0)),
    Part.LineSegment(V(-115, 1.8, 0), V(-114, 2.8, 0)),
    Part.LineSegment(V(-114, 2.8, 0), V(-114, 3.8, 0)),
    Part.LineSegment(V(-114, 3.8, 0), V(-115, 4.8, 0)),
    Part.LineSegment(V(-115, 4.8, 0), V(-117.7, 4.8, 0)),
    Part.LineSegment(V(-117.7, 4.8, 0), V(-117.7, 7, 0)),
], False)
sketch17.addConstraint([
    Sketcher.Constraint("Coincident", 0, 2, 1, 1),
    Sketcher.Constraint("Coincident", 1, 2, 2, 1),
    Sketcher.Constraint("Coincident", 2, 2, 3, 1),
    Sketcher.Constraint("Coincident", 3, 2, 4, 1),
    Sketcher.Constraint("Coincident", 4, 2, 5, 1),
    Sketcher.Constraint("Coincident", 5, 2, 6, 1),
    Sketcher.Constraint("Coincident", 6, 2, 7, 1),
    Sketcher.Constraint("Coincident", 7, 2, 8, 1),
    Sketcher.Constraint("Coincident", 8, 2, 9, 1),
    Sketcher.Constraint("Coincident", 9, 2, 10, 1),
    Sketcher.Constraint("Coincident", 10, 2, 11, 1),
    Sketcher.Constraint("Coincident", 11, 2, 12, 1),
    Sketcher.Constraint("Coincident", 12, 2, 13, 1),
    Sketcher.Constraint("Coincident", 13, 2, 0, 1),
    Sketcher.Constraint("Horizontal", 0),
    Sketcher.Constraint("Vertical", 1),
    Sketcher.Constraint("Horizontal", 2),
    Sketcher.Constraint("Vertical", 4),
    Sketcher.Constraint("Vertical", 6),
    Sketcher.Constraint("Horizontal", 7),
    Sketcher.Constraint("Vertical", 8),
    Sketcher.Constraint("Vertical", 10),
    Sketcher.Constraint("Horizontal", 12),
    Sketcher.Constraint("Vertical", 13),
    Sketcher.Constraint("PointOnObject", 6, 2, -1),
    Sketcher.Constraint("Perpendicular", 3, 5),
    Sketcher.Constraint("Perpendicular", 5, 9),
    Sketcher.Constraint("Perpendicular", 9, 11),
    Sketcher.Constraint("Horizontal", 5, 2, 8, 2),
    Sketcher.Constraint("Horizontal", 4, 2, 9, 2),
    Sketcher.Constraint("Horizontal", 3, 2, 10, 2),
    Sketcher.Constraint("Horizontal", 2, 2, 11, 2),
    Sketcher.Constraint("Vertical", 2, 2, 5, 2),
    Sketcher.Constraint("Vertical", 8, 2, 11, 2),
    Sketcher.Constraint("Equal", 2, 12),
    Sketcher.Constraint("DistanceX", 7, 1, 7, 2, Q("10 mm")),
    Sketcher.Constraint("DistanceY", 4, 2, 4, 1, Q("1 mm")),
    Sketcher.Constraint("DistanceX", 0, 2, 0, 1, Q("4.6 mm")),
    Sketcher.Constraint("DistanceY", 1, 2, 1, 1, Q("2.2 mm")),
    Sketcher.Constraint("DistanceY", 6, 2, 6, 1, Q("1.8 mm")),
    Sketcher.Constraint("DistanceY", -1, 1, 0, 2, Q("7 mm")),
    Sketcher.Constraint("DistanceX", 2, 2, -1, 1, Q("125 mm")),
])
sketch17.setExpression("Constraints[35]", "Params.sketch17_width")
sketch17.setExpression("Constraints[36]", "Params.sketch17_height")
sketch17.setExpression("Constraints[37]", "Params.sketch17_width2")
sketch17.setExpression("Constraints[38]", "Params.sketch17_height2")
sketch17.setExpression("Constraints[39]", "Params.sketch17_height3")
pocket12 = doc.addObject("PartDesign::Pocket", "Pocket011")
body.addObject(pocket12)
pocket12.Profile = sketch17
pocket12.setExpression("Length", "Params.pocket12_length")

sketch18 = doc.addObject("Sketcher::SketchObject", "Sketch017")
body.addObject(sketch18)
sketch18.AttachmentSupport = (doc.XY_Plane, [""])
sketch18.MapMode = "FlatFace"
sketch18.AttachmentOffset = App.Placement(V(0, 0, -49.8), App.Rotation())
sketch18.addGeometry(Part.Circle(V(-120, 100.3, 0), V(0, 0, 1), 11.25), False)
sketch18.addConstraint([
    Sketcher.Constraint("Diameter", 0, Q("22.5 mm")),
    Sketcher.Constraint("DistanceX", 0, 3, -1, 1, Q("120 mm")),
    Sketcher.Constraint("DistanceY", -1, 1, 0, 3, Q("100.3 mm")),
])
sketch18.setExpression("Constraints[0]", "Params.sketch18_diameter")
pocket13 = doc.addObject("PartDesign::Pocket", "Pocket012")
body.addObject(pocket13)
pocket13.Profile = sketch18
pocket13.setExpression("Length", "Params.pocket13_length")

doc.recompute()
